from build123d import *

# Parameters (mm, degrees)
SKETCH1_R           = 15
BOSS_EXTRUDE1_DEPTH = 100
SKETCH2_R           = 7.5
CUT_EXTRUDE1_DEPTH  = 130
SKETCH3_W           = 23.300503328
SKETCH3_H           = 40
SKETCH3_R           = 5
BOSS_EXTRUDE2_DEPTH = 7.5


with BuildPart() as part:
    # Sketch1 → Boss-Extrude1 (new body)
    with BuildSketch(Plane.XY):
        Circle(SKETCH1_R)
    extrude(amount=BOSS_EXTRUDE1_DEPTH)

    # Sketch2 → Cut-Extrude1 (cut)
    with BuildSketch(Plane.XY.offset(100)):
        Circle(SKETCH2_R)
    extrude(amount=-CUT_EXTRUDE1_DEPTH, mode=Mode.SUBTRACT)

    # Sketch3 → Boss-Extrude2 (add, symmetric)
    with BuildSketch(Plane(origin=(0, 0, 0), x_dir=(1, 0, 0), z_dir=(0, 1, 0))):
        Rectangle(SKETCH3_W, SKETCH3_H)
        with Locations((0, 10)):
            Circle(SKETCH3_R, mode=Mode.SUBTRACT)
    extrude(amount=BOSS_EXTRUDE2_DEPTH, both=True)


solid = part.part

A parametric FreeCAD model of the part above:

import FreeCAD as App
import Part
import Sketcher
Q = App.Units.Quantity


def add_polygon(sketch, points):
    """Adds a closed chain of lines whose ends are joined by coincident constraints."""
    first, n = sketch.GeometryCount, len(points)
    for a, b in zip(points, points[1:] + points[:1]):
        sketch.addGeometry(Part.LineSegment(App.Vector(*a, 0), App.Vector(*b, 0)), False)
    for i in range(n):
        sketch.addConstraint(Sketcher.Constraint("Coincident", first + i, 2, first + (i + 1) % n, 1))

doc = App.newDocument("Part")
body = doc.addObject("PartDesign::Body", "Body")

# Sketch on XY plane
sketch1 = body.newObject("Sketcher::SketchObject", "Sketch")
sketch1.AttachmentSupport = (doc.getObject("XY_Plane"), [""])
sketch1.MapMode = "FlatFace"
sketch1.addGeometry(Part.Circle(App.Vector(0, 0, 0), App.Vector(0, 0, 1), 15), False)
sketch1.addConstraint([
    Sketcher.Constraint("Coincident", 0, 3, -1, 1),
    Sketcher.Constraint("Diameter", 0, Q("30 mm")),
])
pad1 = body.newObject("PartDesign::Pad", "Pad")
pad1.Profile = sketch1
pad1.Length = 100

# Sketch on XY plane
sketch2 = body.newObject("Sketcher::SketchObject", "Sketch001")
sketch2.AttachmentSupport = (doc.getObject("XY_Plane"), [""])
sketch2.MapMode = "FlatFace"
sketch2.AttachmentOffset = App.Placement(App.Vector(0, 0, 100), App.Rotation())
sketch2.addGeometry(Part.Circle(App.Vector(0, 0, 0), App.Vector(0, 0, 1), 8), False)
sketch2.addConstraint([
    Sketcher.Constraint("Coincident", 0, 3, -1, 1),
    Sketcher.Constraint("Diameter", 0, Q("15 mm")),
])
pocket1 = body.newObject("PartDesign::Pocket", "Pocket")
pocket1.Profile = sketch2
pocket1.Length = 130

# Sketch on XZ plane
sketch3 = body.newObject("Sketcher::SketchObject", "Sketch002")
sketch3.AttachmentSupport = (doc.getObject("XZ_Plane"), [""])
sketch3.MapMode = "FlatFace"
add_polygon(sketch3, [(-12, -20), (-12, 20), (12, 20), (12, -20)])  # lines 0-3
sketch3.addGeometry(Part.Circle(App.Vector(0, -10, 0), App.Vector(0, 0, 1), 5), False)  # 4
sketch3.addConstraint([
    Sketcher.Constraint("Vertical", 0),
    Sketcher.Constraint("Horizontal", 1),
    Sketcher.Constraint("Vertical", 2),
    Sketcher.Constraint("Horizontal", 3),
    Sketcher.Constraint("Symmetric", 0, 2, 2, 2, -1, 1),
    Sketcher.Constraint("PointOnObject", 4, 3, -2),
    Sketcher.Constraint("Diameter", 4, Q("10 mm")),
    Sketcher.Constraint("DistanceY", 0, 1, 0, 2, Q("40 mm")),
    Sketcher.Constraint("DistanceY", 4, 3, -1, 1, Q("10 mm")),
    Sketcher.Constraint("DistanceX", 1, 1, 1, 2, Q("23.300503 mm")),
])
pad2 = body.newObject("PartDesign::Pad", "Pad001")
pad2.Profile = sketch3
pad2.Length = 15
pad2.Midplane = True

doc.recompute()
